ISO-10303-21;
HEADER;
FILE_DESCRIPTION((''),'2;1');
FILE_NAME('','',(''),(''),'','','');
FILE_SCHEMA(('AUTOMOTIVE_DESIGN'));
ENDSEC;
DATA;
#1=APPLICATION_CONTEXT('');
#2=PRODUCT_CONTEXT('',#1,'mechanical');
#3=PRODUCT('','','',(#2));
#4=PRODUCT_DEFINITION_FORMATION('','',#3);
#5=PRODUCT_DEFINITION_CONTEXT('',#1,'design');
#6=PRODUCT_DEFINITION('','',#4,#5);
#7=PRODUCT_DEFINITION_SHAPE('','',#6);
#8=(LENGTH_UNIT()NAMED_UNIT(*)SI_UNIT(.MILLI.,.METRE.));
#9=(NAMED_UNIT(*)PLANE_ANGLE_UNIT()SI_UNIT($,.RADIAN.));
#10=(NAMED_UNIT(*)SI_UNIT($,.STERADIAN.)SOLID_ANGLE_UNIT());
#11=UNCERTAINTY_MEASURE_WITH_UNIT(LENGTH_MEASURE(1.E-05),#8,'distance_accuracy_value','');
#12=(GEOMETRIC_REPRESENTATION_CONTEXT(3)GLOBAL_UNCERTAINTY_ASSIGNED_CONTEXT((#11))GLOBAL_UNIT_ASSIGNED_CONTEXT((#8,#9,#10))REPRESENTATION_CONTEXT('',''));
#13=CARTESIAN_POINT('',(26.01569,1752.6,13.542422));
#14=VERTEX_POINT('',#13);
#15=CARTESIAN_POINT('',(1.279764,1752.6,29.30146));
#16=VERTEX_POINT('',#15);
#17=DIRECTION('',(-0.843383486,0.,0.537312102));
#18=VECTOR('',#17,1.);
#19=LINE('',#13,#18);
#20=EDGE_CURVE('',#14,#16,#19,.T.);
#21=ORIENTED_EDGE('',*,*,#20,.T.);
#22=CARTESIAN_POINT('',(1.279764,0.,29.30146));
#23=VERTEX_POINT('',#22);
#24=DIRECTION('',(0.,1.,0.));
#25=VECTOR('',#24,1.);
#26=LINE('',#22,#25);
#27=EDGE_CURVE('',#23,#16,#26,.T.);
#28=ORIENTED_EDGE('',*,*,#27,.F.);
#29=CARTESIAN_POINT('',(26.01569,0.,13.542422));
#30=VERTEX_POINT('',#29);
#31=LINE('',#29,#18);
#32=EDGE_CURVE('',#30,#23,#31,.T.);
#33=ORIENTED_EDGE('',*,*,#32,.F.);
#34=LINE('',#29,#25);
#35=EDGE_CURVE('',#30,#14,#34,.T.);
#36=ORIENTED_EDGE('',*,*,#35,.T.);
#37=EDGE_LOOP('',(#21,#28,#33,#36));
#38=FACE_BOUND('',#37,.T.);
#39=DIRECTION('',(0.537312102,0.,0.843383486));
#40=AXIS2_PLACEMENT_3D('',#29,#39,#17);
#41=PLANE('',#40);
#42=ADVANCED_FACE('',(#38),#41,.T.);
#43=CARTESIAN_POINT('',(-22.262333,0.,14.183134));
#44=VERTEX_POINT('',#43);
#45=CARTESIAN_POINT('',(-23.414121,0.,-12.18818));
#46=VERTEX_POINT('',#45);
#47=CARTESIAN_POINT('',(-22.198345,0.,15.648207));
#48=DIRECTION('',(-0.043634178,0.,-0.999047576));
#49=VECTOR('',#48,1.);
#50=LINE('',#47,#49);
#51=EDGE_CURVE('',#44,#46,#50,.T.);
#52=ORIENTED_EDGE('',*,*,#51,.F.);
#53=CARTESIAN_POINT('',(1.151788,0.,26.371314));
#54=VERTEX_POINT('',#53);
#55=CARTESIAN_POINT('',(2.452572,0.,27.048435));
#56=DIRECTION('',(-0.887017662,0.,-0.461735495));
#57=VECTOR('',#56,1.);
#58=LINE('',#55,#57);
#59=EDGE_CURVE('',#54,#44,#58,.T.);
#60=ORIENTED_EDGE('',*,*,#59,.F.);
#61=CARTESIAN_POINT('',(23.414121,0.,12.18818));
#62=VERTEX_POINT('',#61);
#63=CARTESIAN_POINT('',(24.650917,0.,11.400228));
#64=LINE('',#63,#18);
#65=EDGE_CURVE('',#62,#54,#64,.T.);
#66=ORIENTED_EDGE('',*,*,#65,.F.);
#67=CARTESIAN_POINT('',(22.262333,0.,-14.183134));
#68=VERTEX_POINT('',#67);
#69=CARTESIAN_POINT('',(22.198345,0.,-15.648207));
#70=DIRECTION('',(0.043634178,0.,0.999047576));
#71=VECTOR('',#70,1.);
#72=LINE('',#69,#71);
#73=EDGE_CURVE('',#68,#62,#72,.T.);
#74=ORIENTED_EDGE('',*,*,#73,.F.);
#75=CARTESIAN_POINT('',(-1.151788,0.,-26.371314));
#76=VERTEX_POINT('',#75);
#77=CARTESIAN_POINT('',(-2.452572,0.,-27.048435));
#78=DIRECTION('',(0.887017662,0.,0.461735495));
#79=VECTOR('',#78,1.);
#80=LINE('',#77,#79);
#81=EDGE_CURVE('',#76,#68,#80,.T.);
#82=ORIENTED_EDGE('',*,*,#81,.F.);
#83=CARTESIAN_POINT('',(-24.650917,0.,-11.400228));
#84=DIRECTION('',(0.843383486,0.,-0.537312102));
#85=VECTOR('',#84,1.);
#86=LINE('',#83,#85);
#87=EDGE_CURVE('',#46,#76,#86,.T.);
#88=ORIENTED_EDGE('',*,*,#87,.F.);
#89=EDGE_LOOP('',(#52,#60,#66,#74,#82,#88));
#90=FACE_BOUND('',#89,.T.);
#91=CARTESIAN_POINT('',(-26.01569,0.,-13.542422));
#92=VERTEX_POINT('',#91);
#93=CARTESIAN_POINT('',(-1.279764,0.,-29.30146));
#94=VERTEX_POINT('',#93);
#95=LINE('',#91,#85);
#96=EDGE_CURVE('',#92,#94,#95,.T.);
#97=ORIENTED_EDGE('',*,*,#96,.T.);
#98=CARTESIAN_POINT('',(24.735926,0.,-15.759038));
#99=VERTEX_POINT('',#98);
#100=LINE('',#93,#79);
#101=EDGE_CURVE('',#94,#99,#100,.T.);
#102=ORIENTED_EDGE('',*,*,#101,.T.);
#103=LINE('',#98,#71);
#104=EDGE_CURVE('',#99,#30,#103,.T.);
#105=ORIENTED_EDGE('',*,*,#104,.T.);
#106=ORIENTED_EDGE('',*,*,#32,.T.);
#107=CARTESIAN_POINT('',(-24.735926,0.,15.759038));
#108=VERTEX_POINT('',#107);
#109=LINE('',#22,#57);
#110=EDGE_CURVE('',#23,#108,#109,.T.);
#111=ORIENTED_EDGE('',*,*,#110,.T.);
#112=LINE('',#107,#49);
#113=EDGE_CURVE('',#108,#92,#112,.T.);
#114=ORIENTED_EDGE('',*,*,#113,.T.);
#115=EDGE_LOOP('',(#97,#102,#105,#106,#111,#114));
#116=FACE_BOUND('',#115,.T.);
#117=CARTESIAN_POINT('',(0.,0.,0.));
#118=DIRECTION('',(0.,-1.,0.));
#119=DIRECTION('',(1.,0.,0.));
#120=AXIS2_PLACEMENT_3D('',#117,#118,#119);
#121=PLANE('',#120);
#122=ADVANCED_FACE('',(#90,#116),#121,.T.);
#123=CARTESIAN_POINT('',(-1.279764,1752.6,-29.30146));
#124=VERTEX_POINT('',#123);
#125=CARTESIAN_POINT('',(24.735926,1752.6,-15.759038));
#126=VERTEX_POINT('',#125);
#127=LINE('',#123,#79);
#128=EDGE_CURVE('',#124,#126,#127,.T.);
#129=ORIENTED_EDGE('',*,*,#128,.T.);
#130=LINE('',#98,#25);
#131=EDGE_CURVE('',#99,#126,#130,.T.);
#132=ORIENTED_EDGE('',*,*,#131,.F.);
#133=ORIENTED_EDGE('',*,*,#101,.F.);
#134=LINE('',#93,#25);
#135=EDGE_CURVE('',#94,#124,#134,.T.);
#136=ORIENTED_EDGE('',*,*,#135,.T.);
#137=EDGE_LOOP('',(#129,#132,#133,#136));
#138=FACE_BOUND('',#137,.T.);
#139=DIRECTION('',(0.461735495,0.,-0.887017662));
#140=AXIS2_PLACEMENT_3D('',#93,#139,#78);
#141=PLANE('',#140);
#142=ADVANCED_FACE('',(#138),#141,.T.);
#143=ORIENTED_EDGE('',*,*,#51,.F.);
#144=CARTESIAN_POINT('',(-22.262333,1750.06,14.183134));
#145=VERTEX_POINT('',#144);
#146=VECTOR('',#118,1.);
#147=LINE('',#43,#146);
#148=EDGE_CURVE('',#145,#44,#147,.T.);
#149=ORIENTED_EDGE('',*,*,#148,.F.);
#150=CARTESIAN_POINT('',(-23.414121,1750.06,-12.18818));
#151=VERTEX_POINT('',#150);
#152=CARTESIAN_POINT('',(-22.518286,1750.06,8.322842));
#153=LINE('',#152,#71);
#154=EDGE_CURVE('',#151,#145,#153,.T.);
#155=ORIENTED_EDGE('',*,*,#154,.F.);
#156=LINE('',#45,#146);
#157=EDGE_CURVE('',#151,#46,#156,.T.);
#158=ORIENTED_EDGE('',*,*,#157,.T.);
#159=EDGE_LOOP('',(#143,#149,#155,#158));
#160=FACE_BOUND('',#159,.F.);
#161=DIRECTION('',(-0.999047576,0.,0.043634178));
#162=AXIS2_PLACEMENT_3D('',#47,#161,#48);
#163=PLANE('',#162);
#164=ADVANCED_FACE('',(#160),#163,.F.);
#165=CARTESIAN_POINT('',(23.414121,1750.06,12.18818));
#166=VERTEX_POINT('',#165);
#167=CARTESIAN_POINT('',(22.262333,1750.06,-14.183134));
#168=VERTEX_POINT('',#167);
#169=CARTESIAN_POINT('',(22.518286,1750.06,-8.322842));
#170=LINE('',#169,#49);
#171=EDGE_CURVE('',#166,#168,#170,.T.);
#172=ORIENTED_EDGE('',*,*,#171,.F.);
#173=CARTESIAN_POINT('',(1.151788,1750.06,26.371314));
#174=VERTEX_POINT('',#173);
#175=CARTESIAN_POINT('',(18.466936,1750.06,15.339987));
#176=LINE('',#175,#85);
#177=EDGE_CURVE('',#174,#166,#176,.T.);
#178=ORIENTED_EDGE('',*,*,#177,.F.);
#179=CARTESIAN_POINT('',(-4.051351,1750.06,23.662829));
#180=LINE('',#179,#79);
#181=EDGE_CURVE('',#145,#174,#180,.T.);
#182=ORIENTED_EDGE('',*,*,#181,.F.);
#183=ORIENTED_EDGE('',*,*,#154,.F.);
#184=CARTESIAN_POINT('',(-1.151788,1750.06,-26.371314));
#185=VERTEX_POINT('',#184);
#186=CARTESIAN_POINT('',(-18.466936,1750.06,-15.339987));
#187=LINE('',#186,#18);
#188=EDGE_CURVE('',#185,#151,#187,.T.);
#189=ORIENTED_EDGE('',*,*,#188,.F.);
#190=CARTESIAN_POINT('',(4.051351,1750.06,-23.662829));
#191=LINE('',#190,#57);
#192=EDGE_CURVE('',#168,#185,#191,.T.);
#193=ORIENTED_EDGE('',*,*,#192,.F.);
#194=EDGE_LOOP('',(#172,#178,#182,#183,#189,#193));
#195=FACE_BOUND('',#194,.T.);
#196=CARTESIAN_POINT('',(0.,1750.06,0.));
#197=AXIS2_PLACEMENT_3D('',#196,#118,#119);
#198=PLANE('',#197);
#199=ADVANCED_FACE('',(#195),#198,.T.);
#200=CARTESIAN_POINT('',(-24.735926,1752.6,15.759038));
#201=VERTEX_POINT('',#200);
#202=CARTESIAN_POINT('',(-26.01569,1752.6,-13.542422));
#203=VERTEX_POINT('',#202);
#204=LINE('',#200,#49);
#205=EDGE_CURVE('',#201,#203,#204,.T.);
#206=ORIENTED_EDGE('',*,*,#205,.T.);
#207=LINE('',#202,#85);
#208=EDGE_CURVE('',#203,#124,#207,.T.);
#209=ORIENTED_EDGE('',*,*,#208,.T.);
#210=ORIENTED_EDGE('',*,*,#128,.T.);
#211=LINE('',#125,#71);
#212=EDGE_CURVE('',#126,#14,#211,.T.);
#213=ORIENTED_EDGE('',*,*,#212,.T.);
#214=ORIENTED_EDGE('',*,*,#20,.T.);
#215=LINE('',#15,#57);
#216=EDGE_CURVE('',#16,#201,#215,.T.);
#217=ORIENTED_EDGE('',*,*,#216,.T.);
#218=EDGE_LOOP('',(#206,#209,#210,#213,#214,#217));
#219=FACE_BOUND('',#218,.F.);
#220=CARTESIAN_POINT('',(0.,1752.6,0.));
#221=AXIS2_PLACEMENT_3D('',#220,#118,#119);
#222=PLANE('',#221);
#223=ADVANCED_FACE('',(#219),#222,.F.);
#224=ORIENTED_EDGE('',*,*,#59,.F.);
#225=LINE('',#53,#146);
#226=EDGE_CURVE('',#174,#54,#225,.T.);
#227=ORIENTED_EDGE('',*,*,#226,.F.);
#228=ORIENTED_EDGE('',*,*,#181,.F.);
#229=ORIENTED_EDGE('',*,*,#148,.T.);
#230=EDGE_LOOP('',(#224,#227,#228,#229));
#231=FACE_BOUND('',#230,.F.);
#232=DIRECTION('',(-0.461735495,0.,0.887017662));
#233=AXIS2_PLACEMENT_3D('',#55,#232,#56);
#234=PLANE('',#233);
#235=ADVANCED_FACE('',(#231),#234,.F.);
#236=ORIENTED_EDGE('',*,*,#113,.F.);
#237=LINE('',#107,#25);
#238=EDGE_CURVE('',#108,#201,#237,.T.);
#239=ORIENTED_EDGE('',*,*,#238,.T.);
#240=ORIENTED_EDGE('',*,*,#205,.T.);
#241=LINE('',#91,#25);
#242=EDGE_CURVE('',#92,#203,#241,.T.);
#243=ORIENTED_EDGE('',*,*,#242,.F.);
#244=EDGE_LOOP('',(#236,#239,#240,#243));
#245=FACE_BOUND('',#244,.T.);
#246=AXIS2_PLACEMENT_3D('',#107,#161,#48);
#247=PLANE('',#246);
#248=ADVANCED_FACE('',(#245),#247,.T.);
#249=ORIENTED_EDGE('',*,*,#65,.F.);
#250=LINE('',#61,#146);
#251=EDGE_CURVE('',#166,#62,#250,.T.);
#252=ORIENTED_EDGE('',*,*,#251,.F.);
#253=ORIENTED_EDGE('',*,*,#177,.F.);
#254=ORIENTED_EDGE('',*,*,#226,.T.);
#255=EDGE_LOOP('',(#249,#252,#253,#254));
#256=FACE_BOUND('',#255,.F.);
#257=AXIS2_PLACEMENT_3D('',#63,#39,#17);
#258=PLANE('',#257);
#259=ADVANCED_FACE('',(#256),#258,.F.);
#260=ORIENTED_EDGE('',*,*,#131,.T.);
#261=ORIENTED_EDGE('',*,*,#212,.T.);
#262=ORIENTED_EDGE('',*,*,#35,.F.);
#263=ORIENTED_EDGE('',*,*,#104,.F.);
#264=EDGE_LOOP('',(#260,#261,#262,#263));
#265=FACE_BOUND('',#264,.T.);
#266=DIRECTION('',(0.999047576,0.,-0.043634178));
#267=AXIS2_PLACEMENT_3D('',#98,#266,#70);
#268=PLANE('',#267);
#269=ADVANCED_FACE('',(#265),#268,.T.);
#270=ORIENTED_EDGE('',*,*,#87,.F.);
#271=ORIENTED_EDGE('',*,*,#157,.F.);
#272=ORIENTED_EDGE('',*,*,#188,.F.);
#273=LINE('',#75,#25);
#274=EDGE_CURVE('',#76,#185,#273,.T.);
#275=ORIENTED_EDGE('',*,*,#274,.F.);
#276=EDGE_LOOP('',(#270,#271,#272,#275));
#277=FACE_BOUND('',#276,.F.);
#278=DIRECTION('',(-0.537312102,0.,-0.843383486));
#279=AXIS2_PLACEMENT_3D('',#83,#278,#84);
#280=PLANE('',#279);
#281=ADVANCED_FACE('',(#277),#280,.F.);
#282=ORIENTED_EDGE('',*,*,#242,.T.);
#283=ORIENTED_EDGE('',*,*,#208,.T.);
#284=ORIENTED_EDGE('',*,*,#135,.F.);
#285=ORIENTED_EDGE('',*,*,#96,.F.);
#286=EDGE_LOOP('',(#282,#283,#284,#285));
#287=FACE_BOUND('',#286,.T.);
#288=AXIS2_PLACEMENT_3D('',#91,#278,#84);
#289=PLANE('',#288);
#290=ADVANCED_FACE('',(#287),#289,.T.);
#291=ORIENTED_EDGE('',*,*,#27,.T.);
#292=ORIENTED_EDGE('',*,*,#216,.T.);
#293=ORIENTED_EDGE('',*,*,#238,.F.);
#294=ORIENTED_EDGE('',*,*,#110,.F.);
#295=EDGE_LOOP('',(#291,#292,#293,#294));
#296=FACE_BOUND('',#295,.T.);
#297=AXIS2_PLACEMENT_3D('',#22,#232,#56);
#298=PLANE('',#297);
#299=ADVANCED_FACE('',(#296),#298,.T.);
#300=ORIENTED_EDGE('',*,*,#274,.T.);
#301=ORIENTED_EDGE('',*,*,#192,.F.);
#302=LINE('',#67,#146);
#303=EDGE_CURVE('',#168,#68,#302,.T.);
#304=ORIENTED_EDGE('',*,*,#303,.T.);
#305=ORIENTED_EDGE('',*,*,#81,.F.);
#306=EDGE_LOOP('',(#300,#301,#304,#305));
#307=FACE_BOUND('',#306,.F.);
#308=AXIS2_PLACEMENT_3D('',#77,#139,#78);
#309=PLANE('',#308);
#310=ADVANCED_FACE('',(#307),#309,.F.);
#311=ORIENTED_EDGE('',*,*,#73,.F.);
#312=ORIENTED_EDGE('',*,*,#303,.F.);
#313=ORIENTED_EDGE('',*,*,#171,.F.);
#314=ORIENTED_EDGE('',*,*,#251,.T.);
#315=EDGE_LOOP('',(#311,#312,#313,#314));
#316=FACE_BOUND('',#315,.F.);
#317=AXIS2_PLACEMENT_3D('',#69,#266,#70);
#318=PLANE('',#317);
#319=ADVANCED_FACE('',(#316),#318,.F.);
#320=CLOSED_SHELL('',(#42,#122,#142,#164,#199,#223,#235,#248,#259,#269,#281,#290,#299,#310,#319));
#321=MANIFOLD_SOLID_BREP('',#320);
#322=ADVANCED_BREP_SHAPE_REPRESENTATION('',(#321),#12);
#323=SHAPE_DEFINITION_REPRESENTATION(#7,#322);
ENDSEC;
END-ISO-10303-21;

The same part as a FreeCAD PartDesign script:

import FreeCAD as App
import Part
import Sketcher
Q = App.Units.Quantity


def faces_at(feature, points):
    """Names of the faces that lie closest to the given points."""
    faces = feature.Shape.Faces
    near = lambda p: min(range(len(faces)), key=lambda i: faces[i].distToShape(Part.Vertex(*p))[0])
    return sorted({f"Face{near(p) + 1}" for p in points})


def add_polygon(sketch, points):
    """Adds a closed chain of lines whose ends are joined by coincident constraints."""
    first, n = sketch.GeometryCount, len(points)
    for a, b in zip(points, points[1:] + points[:1]):
        sketch.addGeometry(Part.LineSegment(App.Vector(*a, 0), App.Vector(*b, 0)), False)
    for i in range(n):
        sketch.addConstraint(Sketcher.Constraint("Coincident", first + i, 2, first + (i + 1) % n, 1))

doc = App.newDocument("Part")
body = doc.addObject("PartDesign::Body", "Body")

sketch1 = body.newObject("Sketcher::SketchObject", "Sketch")
sketch1.AttachmentSupport = (doc.getObject("XZ_Plane"), [""])
sketch1.MapMode = "FlatFace"
add_polygon(sketch1, [(-1.279764, -29.30146), (24.735926, -15.759038), (26.01569, 13.542422), (1.279764, 29.30146), (-24.735926, 15.759038), (-26.01569, -13.542422)])
sketch1.addConstraint(Sketcher.Constraint("Symmetric", 0, 2, 3, 2, -1, 1))
sketch1.addConstraint(Sketcher.Constraint("Symmetric", 1, 2, 4, 2, -1, 1))
sketch1.addConstraint(Sketcher.Constraint("Symmetric", 2, 2, 5, 2, -1, 1))
sketch1.addConstraint(Sketcher.Constraint("Equal", 0, 1))
sketch1.addConstraint(Sketcher.Constraint("Equal", 1, 2))
sketch1.addConstraint(Sketcher.Constraint("DistanceX", -1, 1, 1, 2, Q("26.01569 mm")))
sketch1.addConstraint(Sketcher.Constraint("DistanceY", -1, 1, 2, 2, Q("29.30146 mm")))
sketch1.addConstraint(Sketcher.Constraint("DistanceY", 0, 2, 1, 2, Q("29.30146 mm")))
sketch1.addConstraint(Sketcher.Constraint("DistanceX", 2, 2, 0, 2, Q("23.456162 mm")))
pad1 = body.newObject("PartDesign::Pad", "Pad")
pad1.Profile = sketch1
pad1.Length = Q("69 in")
pad1.Reversed = True
doc.recompute()

thickness = body.newObject("PartDesign::Thickness", "Thickness")
thickness.Base = (pad1, faces_at(pad1, [(0, 0, 0)]))
thickness.Value = Q("0.1 in")
thickness.Reversed = True
thickness.Join = "Arc"

doc.recompute()
